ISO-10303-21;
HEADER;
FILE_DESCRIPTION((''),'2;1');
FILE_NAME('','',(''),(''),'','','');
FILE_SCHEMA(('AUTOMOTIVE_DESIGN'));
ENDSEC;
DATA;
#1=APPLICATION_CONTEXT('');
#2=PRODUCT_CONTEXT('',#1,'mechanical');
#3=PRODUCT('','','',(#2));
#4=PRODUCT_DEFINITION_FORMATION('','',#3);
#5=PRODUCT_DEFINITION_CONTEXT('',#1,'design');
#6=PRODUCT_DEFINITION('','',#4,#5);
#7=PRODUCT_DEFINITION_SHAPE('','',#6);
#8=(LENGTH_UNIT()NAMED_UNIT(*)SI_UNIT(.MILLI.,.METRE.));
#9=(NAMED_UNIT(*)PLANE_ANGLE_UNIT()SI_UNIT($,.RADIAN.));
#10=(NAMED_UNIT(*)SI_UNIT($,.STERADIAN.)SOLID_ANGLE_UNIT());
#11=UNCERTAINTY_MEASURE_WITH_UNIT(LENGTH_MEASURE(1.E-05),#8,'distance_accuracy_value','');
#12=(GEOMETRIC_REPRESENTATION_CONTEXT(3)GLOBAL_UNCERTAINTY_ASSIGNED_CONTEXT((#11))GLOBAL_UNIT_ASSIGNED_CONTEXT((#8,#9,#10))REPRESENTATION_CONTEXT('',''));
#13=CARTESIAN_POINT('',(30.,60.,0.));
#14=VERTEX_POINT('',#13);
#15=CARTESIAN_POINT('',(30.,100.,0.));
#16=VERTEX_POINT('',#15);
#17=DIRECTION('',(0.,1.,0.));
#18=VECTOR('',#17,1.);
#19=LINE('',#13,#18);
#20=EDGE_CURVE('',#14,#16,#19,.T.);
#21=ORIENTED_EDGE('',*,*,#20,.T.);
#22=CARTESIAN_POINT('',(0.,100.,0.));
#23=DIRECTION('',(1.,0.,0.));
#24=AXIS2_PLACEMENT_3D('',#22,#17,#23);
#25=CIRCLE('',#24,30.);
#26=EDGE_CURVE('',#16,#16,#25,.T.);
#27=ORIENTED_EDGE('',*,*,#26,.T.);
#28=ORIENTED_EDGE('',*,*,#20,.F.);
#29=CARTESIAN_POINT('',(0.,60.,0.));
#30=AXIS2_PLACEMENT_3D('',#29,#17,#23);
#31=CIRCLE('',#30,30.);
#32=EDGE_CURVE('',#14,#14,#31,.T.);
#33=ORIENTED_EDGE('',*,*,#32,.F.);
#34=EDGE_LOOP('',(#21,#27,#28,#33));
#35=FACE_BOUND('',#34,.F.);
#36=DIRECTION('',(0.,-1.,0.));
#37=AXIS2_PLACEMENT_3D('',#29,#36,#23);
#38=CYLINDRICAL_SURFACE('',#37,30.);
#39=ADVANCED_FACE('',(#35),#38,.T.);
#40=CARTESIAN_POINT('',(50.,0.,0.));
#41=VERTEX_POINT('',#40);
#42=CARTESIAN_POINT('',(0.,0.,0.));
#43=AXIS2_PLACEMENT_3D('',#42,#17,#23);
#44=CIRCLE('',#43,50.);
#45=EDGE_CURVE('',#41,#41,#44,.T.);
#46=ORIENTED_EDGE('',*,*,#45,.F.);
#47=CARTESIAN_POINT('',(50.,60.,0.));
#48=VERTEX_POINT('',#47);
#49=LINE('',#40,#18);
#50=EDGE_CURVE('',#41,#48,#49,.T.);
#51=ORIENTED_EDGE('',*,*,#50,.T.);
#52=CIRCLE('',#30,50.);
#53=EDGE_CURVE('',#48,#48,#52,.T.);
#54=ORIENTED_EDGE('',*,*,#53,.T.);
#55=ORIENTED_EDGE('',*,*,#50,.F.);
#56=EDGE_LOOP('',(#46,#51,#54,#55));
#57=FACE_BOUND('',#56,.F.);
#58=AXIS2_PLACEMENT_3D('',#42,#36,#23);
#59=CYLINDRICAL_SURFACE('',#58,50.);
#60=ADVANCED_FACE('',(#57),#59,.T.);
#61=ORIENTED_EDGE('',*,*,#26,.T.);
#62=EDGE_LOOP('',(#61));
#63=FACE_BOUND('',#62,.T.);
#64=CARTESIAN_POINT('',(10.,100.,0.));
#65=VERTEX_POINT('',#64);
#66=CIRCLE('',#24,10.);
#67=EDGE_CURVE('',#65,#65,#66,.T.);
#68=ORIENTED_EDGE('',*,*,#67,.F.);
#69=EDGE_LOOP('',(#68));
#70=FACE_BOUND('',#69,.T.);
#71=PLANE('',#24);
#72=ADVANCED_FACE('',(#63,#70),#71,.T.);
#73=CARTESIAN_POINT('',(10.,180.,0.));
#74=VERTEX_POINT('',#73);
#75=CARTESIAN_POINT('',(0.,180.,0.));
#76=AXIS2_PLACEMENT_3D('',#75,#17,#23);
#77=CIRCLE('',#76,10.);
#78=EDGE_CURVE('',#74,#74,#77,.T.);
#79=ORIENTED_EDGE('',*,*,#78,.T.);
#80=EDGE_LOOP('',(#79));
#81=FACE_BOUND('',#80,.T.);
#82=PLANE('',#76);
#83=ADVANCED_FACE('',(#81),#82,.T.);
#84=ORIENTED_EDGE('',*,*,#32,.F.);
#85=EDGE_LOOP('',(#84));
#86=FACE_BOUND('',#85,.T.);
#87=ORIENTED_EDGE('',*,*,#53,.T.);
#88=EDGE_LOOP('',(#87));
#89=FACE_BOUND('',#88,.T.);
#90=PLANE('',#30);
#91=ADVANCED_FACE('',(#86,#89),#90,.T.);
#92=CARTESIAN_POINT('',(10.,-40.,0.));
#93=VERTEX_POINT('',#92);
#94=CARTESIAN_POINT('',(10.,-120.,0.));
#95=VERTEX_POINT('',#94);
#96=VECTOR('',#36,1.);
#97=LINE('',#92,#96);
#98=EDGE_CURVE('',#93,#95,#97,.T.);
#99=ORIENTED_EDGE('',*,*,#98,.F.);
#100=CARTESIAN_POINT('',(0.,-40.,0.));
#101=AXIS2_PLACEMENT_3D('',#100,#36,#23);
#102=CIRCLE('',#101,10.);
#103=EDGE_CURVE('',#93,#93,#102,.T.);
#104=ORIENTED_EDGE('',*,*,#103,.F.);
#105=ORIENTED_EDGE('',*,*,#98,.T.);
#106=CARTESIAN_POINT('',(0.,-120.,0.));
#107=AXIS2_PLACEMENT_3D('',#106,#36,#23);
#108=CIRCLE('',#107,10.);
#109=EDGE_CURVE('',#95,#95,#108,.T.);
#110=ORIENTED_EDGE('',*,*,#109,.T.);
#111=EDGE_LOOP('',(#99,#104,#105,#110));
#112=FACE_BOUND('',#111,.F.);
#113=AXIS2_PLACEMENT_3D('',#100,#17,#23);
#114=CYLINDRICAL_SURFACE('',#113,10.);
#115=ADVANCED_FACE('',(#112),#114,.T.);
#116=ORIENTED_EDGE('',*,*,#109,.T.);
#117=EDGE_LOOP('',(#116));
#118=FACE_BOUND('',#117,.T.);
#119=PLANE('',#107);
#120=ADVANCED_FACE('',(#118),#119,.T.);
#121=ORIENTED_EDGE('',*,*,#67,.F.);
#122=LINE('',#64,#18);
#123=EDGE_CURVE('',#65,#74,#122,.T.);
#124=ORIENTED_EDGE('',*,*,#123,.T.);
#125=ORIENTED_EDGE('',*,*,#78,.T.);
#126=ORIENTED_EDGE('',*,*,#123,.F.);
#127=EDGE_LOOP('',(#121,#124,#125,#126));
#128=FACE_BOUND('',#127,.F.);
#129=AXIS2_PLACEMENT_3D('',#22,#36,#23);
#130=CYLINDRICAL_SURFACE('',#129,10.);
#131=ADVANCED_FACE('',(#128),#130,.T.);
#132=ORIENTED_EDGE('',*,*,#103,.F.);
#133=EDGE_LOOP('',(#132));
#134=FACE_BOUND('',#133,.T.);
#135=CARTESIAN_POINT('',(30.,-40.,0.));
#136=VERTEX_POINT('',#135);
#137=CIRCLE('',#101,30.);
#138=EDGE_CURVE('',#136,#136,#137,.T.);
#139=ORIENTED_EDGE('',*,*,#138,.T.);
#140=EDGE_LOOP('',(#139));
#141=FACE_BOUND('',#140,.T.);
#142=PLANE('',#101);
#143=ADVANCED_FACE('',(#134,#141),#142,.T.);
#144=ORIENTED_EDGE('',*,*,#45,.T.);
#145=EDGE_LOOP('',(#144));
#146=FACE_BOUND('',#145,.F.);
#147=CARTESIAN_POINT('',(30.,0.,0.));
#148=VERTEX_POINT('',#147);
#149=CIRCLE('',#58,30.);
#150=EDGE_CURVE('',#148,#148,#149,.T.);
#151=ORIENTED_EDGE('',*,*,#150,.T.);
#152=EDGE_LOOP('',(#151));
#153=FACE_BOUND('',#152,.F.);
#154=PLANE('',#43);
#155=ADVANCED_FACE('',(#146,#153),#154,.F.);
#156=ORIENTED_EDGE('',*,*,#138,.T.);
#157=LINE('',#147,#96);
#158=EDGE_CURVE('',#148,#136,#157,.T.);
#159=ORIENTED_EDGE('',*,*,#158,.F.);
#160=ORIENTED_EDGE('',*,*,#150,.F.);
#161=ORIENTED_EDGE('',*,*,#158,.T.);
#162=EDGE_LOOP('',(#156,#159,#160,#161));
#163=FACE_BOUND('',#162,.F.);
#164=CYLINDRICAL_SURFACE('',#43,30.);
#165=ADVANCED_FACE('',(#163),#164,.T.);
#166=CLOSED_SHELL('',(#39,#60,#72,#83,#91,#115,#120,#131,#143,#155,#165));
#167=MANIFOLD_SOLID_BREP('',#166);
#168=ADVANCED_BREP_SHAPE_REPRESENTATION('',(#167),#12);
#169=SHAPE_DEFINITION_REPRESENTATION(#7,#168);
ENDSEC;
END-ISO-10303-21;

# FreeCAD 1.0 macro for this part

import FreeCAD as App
import Part
import Sketcher
from FreeCAD import Vector

doc = App.newDocument("Part")
body = doc.addObject("PartDesign::Body", "Body")

# Sketch on XZ plane
sketch1 = doc.addObject("Sketcher::SketchObject", "Sketch")
body.addObject(sketch1)
sketch1.AttachmentSupport = (doc.XZ_Plane, [""])
sketch1.MapMode = "FlatFace"
sketch1.addGeometry(Part.Circle(Vector(0, 0, 0), Vector(0, 0, 1), 50), False)
sketch1.addConstraint(Sketcher.Constraint("Coincident", 0, 3, -1, 1))
sketch1.addConstraint(Sketcher.Constraint("Diameter", 0, 100.0))
pad1 = doc.addObject("PartDesign::Pad", "Pad")
body.addObject(pad1)
pad1.Profile = sketch1
pad1.Length = 60
pad1.Reversed = True

# Sketch on XZ plane
sketch2 = doc.addObject("Sketcher::SketchObject", "Sketch001")
body.addObject(sketch2)
sketch2.AttachmentSupport = (doc.XZ_Plane, [""])
sketch2.MapMode = "FlatFace"
sketch2.AttachmentOffset = App.Placement(Vector(0, 0, -60), App.Rotation())
sketch2.addGeometry(Part.Circle(Vector(0, 0, 0), Vector(0, 0, 1), 30), False)
sketch2.addConstraint(Sketcher.Constraint("Coincident", 0, 3, -1, 1))
sketch2.addConstraint(Sketcher.Constraint("Diameter", 0, 60.0))
pad2 = doc.addObject("PartDesign::Pad", "Pad001")
body.addObject(pad2)
pad2.Profile = sketch2
pad2.Length = 40
pad2.Reversed = True

# Sketch on XZ plane
sketch3 = doc.addObject("Sketcher::SketchObject", "Sketch002")
body.addObject(sketch3)
sketch3.AttachmentSupport = (doc.XZ_Plane, [""])
sketch3.MapMode = "FlatFace"
sketch3.AttachmentOffset = App.Placement(Vector(0, 0, -100), App.Rotation())
sketch3.addGeometry(Part.Circle(Vector(0, 0, 0), Vector(0, 0, 1), 10), False)
sketch3.addConstraint(Sketcher.Constraint("Coincident", 0, 3, -1, 1))
sketch3.addConstraint(Sketcher.Constraint("Diameter", 0, 20.0))
pad3 = doc.addObject("PartDesign::Pad", "Pad002")
body.addObject(pad3)
pad3.Profile = sketch3
pad3.Length = 80
pad3.Reversed = True

# Sketch on XZ plane
sketch4 = doc.addObject("Sketcher::SketchObject", "Sketch003")
body.addObject(sketch4)
sketch4.AttachmentSupport = (doc.XZ_Plane, [""])
sketch4.MapMode = "FlatFace"
sketch4.addGeometry(Part.Circle(Vector(0, 0, 0), Vector(0, 0, 1), 30), False)
sketch4.addConstraint(Sketcher.Constraint("Coincident", 0, 3, -1, 1))
sketch4.addConstraint(Sketcher.Constraint("Diameter", 0, 60.0))
pad4 = doc.addObject("PartDesign::Pad", "Pad003")
body.addObject(pad4)
pad4.Profile = sketch4
pad4.Length = 40

# Sketch on XZ plane
sketch5 = doc.addObject("Sketcher::SketchObject", "Sketch004")
body.addObject(sketch5)
sketch5.AttachmentSupport = (doc.XZ_Plane, [""])
sketch5.MapMode = "FlatFace"
sketch5.AttachmentOffset = App.Placement(Vector(0, 0, 40), App.Rotation())
sketch5.addGeometry(Part.Circle(Vector(0, 0, 0), Vector(0, 0, 1), 10), False)
sketch5.addConstraint(Sketcher.Constraint("Coincident", 0, 3, -1, 1))
sketch5.addConstraint(Sketcher.Constraint("Diameter", 0, 20.0))
pad5 = doc.addObject("PartDesign::Pad", "Pad004")
body.addObject(pad5)
pad5.Profile = sketch5
pad5.Length = 80

doc.recompute()
